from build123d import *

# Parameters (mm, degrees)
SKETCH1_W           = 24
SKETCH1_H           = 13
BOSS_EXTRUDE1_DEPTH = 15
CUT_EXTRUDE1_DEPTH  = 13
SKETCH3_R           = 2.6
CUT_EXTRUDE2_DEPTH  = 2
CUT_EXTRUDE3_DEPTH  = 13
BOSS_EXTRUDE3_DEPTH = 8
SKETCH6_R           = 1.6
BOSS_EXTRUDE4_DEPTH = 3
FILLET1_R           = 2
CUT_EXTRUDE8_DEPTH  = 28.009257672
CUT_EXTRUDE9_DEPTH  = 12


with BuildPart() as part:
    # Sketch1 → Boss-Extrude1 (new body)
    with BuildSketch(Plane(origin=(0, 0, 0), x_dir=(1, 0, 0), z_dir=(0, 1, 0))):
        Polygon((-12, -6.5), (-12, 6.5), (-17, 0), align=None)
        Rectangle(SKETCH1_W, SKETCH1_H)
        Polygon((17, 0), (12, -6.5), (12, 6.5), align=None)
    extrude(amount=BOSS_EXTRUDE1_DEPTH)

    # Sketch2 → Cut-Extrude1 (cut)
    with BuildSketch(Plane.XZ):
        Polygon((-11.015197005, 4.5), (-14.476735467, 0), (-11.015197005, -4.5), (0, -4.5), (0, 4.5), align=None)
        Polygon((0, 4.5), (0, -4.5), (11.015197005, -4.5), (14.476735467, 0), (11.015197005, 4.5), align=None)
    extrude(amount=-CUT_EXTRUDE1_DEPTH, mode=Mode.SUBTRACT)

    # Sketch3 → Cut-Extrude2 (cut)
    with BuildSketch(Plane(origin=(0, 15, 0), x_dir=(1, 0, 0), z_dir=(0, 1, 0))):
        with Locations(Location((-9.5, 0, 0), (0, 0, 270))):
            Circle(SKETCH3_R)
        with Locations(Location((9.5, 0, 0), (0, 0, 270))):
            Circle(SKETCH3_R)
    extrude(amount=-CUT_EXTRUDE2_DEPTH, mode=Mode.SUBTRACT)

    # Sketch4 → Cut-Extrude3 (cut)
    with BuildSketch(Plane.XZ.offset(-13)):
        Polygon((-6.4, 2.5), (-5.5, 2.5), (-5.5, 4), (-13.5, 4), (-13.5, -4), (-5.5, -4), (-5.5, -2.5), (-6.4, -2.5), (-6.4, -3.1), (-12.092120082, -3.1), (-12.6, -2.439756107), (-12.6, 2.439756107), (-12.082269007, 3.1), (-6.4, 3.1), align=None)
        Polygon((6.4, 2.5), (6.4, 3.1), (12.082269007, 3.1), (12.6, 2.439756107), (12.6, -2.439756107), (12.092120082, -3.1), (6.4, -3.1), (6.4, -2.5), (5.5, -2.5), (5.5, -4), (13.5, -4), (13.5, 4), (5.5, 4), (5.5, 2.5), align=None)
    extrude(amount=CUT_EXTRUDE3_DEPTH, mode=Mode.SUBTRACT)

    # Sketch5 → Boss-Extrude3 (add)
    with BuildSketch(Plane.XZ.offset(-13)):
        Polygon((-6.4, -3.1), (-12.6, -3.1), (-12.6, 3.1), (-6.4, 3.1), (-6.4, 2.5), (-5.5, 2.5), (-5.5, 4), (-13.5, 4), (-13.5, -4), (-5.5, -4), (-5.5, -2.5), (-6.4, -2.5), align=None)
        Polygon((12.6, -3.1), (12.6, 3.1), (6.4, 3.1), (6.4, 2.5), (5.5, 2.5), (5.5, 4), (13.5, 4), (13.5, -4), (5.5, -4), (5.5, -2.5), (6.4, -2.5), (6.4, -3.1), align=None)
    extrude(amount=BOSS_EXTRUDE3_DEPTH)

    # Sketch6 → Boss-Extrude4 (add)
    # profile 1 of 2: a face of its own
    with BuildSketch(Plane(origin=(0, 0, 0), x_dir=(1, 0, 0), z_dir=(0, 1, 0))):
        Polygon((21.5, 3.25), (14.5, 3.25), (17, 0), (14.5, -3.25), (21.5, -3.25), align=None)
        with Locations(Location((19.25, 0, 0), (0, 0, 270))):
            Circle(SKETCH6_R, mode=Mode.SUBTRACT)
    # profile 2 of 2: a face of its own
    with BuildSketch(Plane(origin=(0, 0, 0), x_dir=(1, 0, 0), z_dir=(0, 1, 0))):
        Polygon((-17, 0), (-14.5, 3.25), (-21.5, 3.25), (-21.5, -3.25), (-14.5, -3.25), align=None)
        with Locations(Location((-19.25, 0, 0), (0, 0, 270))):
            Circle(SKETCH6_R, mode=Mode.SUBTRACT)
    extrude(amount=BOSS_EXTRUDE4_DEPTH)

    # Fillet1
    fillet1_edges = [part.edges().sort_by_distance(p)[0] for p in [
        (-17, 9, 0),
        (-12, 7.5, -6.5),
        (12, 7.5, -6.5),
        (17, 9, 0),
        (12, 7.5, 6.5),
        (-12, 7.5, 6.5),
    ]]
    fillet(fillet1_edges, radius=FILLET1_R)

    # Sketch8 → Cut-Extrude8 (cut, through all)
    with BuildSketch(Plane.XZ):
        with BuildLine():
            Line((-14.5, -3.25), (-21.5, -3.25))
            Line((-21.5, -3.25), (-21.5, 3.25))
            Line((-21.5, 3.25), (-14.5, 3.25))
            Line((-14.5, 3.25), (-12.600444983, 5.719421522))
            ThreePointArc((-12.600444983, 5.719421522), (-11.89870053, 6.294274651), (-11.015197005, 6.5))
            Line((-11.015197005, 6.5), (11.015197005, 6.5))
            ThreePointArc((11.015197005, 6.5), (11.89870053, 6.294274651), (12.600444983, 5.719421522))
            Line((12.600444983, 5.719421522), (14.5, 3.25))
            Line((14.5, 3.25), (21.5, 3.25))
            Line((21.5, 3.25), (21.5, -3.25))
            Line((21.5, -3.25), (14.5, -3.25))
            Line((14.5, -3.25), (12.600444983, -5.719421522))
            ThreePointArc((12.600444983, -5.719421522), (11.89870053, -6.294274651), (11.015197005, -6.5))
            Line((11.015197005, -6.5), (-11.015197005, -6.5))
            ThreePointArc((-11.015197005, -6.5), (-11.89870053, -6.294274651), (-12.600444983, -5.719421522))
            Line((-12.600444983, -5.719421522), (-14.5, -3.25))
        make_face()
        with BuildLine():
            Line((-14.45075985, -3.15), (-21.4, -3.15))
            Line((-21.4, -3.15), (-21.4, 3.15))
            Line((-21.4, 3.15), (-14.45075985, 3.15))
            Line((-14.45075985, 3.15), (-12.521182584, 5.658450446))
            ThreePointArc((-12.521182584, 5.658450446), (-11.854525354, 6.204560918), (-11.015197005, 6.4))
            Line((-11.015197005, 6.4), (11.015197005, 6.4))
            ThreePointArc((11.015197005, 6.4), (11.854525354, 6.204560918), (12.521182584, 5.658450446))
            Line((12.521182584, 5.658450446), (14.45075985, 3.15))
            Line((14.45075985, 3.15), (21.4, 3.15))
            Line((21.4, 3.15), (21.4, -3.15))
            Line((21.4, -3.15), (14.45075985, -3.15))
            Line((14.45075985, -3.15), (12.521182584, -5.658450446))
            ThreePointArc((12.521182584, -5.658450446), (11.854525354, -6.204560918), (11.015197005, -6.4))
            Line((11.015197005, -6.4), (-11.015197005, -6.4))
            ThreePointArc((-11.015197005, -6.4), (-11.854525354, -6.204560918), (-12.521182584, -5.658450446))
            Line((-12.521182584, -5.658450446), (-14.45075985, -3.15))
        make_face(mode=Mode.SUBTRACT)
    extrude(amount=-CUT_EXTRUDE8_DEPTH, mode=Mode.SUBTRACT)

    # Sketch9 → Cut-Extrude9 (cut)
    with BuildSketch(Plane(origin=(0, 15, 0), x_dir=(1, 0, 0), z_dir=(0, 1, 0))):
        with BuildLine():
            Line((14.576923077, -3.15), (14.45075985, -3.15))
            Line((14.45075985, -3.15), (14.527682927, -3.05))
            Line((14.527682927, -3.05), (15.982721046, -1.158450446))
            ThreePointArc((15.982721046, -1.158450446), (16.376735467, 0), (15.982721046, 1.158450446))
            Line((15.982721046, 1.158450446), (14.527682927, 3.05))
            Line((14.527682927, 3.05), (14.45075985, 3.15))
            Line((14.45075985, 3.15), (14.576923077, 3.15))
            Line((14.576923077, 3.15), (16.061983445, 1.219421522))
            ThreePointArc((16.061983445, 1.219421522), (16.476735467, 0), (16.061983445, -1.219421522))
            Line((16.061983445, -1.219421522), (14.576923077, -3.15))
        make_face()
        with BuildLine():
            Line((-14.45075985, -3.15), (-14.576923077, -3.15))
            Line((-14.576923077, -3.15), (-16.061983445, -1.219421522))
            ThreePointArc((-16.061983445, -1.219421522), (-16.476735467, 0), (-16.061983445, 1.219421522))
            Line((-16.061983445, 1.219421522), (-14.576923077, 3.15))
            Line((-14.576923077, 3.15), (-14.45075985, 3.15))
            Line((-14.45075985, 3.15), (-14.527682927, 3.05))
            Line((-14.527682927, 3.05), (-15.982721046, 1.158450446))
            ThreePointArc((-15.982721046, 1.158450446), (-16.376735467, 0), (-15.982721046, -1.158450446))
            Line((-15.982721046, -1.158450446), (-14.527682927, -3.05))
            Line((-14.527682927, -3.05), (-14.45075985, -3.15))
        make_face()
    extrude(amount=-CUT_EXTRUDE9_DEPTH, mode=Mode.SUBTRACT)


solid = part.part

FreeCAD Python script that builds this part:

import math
import FreeCAD as App
import Part
import Sketcher

V = App.Vector


def edges_at(feature, points):
    """Names of the edges that pass closest to the given points."""
    edges = feature.Shape.Edges
    near = lambda p: min(range(len(edges)), key=lambda i: edges[i].distToShape(Part.Vertex(*p))[0])
    return sorted({f"Edge{near(p) + 1}" for p in points})

doc = App.newDocument("Part")
params = doc.addObject("Spreadsheet::Sheet", "Params")
for row, (alias, value) in enumerate([
    ("sketch1_width", "24 mm"),
    ("pad1_length", "15 mm"),
    ("pocket1_length", "13 mm"),
    ("sketch3_diameter", "5.2 mm"),
    ("pocket2_length", "2 mm"),
    ("sketch4_width", "8 mm"),
    ("sketch4_width2", "0.9 mm"),
    ("sketch4_height", "1.5 mm"),
    ("sketch4_height2", "0.6 mm"),
    ("pocket3_length", "13 mm"),
    ("sketch5_width", "8 mm"),
    ("sketch5_width2", "6.2 mm"),
    ("sketch5_width3", "0.9 mm"),
    ("sketch5_height", "0.6 mm"),
    ("pad2_length", "8 mm"),
    ("sketch6_diameter", "3.2 mm"),
    ("sketch6_width", "7 mm"),
    ("sketch6_height", "6.5 mm"),
    ("pad3_length", "3 mm"),
    ("fillet_radius", "2 mm"),
    ("sketch7_radius", "2 mm"),
    ("sketch7_radius2", "1.9 mm"),
    ("sketch7_width", "7 mm"),
    ("sketch7_height", "6.5 mm"),
    ("sketch7_height2", "6.3 mm"),
    ("sketch8_radius", "2 mm"),
    ("sketch8_radius2", "1.9 mm"),
    ("pocket5_length", "12 mm"),
], start=1):
    params.set(f"A{row}", alias)
    params.set(f"B{row}", "=" + value)
    params.setAlias(f"B{row}", alias)

body = doc.addObject("PartDesign::Body", "Body")

# Sketch on XZ plane
sketch1 = doc.addObject("Sketcher::SketchObject", "Sketch")
body.addObject(sketch1)
sketch1.AttachmentSupport = (doc.XZ_Plane, [""])
sketch1.MapMode = "FlatFace"
sketch1.addGeometry([
    Part.LineSegment(V(-12, -6, 0), V(-17, 0, 0)),  # 0
    Part.LineSegment(V(-17, 0, 0), V(-12, 6, 0)),  # 1
    Part.LineSegment(V(-12, 6, 0), V(12, 6, 0)),  # 2
    Part.LineSegment(V(12, 6, 0), V(17, 0, 0)),  # 3
    Part.LineSegment(V(17, 0, 0), V(12, -6, 0)),  # 4
    Part.LineSegment(V(12, -6, 0), V(-12, -6, 0)),  # 5
], False)
sketch1.addConstraint([
    Sketcher.Constraint("Coincident", 0, 2, 1, 1),
    Sketcher.Constraint("Coincident", 1, 2, 2, 1),
    Sketcher.Constraint("Coincident", 2, 2, 3, 1),
    Sketcher.Constraint("Coincident", 3, 2, 4, 1),
    Sketcher.Constraint("Coincident", 4, 2, 5, 1),
    Sketcher.Constraint("Coincident", 5, 2, 0, 1),
    Sketcher.Constraint("Horizontal", 2),
    Sketcher.Constraint("Horizontal", 5),
    Sketcher.Constraint("Symmetric", 0, 2, 3, 2, -1, 1),
    Sketcher.Constraint("Symmetric", 1, 2, 4, 2, -1, 1),
    Sketcher.Constraint("PointOnObject", 0, 2, -1),
    Sketcher.Constraint("Parallel", 0, 3),
    Sketcher.Constraint("Vertical", 2, 2, 4, 2),
    Sketcher.Constraint("DistanceX", 2, 1, 2, 2, 24.0),
    Sketcher.Constraint("DistanceX", 0, 2, -1, 1, 17.0),
    Sketcher.Constraint("DistanceY", 4, 2, 2, 2, 13.0),
])
sketch1.setExpression("Constraints[13]", "Params.sketch1_width")
pad1 = doc.addObject("PartDesign::Pad", "Pad")
body.addObject(pad1)
pad1.Profile = sketch1
pad1.setExpression("Length", "Params.pad1_length")
pad1.Reversed = True

# Sketch on XZ plane
sketch2 = doc.addObject("Sketcher::SketchObject", "Sketch001")
body.addObject(sketch2)
sketch2.AttachmentSupport = (doc.XZ_Plane, [""])
sketch2.MapMode = "FlatFace"
sketch2.addGeometry([
    Part.LineSegment(V(-11, 4, 0), V(-14, 0, 0)),  # 0
    Part.LineSegment(V(-14, 0, 0), V(-11, -4, 0)),  # 1
    Part.LineSegment(V(-11, -4, 0), V(11, -4, 0)),  # 2
    Part.LineSegment(V(11, -4, 0), V(14, 0, 0)),  # 3
    Part.LineSegment(V(14, 0, 0), V(11, 4, 0)),  # 4
    Part.LineSegment(V(11, 4, 0), V(-11, 4, 0)),  # 5
], False)
sketch2.addConstraint([
    Sketcher.Constraint("Coincident", 0, 2, 1, 1),
    Sketcher.Constraint("Coincident", 1, 2, 2, 1),
    Sketcher.Constraint("Coincident", 2, 2, 3, 1),
    Sketcher.Constraint("Coincident", 3, 2, 4, 1),
    Sketcher.Constraint("Coincident", 4, 2, 5, 1),
    Sketcher.Constraint("Coincident", 5, 2, 0, 1),
    Sketcher.Constraint("Horizontal", 2),
    Sketcher.Constraint("Horizontal", 5),
    Sketcher.Constraint("Symmetric", 0, 2, 3, 2, -1, 1),
    Sketcher.Constraint("Symmetric", 1, 2, 4, 2, -1, 1),
    Sketcher.Constraint("PointOnObject", 0, 2, -1),
    Sketcher.Constraint("Parallel", 0, 3),
    Sketcher.Constraint("Vertical", 2, 2, 4, 2),
    Sketcher.Constraint("DistanceY", 2, 2, 4, 2, 9.0),
    Sketcher.Constraint("DistanceX", 2, 1, 2, 2, 22.030394),
    Sketcher.Constraint("DistanceX", 0, 2, 1, 2, 3.461538),
])
pocket1 = doc.addObject("PartDesign::Pocket", "Pocket")
body.addObject(pocket1)
pocket1.Profile = sketch2
pocket1.setExpression("Length", "Params.pocket1_length")

# Sketch on XZ plane
sketch3 = doc.addObject("Sketcher::SketchObject", "Sketch002")
body.addObject(sketch3)
sketch3.AttachmentSupport = (doc.XZ_Plane, [""])
sketch3.MapMode = "FlatFace"
sketch3.AttachmentOffset = App.Placement(V(0, 0, -15), App.Rotation())
sketch3.addGeometry([
    Part.Circle(V(-9.5, 0, 0), V(0, 0, 1), 2.6),
    Part.Circle(V(9.5, 0, 0), V(0, 0, 1), 2.6),
], False)
sketch3.addConstraint([
    Sketcher.Constraint("Equal", 0, 1),
    Sketcher.Constraint("Symmetric", 0, 3, 1, 3, -1, 1),
    Sketcher.Constraint("PointOnObject", 0, 3, -1),
    Sketcher.Constraint("Diameter", 0, 5.2),
    Sketcher.Constraint("DistanceX", 0, 3, 1, 3, 19.0),
])
sketch3.setExpression("Constraints[3]", "Params.sketch3_diameter")
pocket2 = doc.addObject("PartDesign::Pocket", "Pocket001")
body.addObject(pocket2)
pocket2.Profile = sketch3
pocket2.setExpression("Length", "Params.pocket2_length")
pocket2.Reversed = True

# Sketch on XZ plane
sketch4 = doc.addObject("Sketcher::SketchObject", "Sketch003")
body.addObject(sketch4)
sketch4.AttachmentSupport = (doc.XZ_Plane, [""])
sketch4.MapMode = "FlatFace"
sketch4.AttachmentOffset = App.Placement(V(0, 0, -13), App.Rotation())
sketch4.addGeometry([
    Part.LineSegment(V(-6.4, 2.5, 0), V(-5.5, 2.5, 0)),  # 0
    Part.LineSegment(V(-5.5, 2.5, 0), V(-5.5, 4, 0)),  # 1
    Part.LineSegment(V(-5.5, 4, 0), V(-13.5, 4, 0)),  # 2
    Part.LineSegment(V(-13.5, 4, 0), V(-13.5, -4, 0)),  # 3
    Part.LineSegment(V(-13.5, -4, 0), V(-5.5, -4, 0)),  # 4
    Part.LineSegment(V(-5.5, -4, 0), V(-5.5, -2.5, 0)),  # 5
    Part.LineSegment(V(-5.5, -2.5, 0), V(-6.4, -2.5, 0)),  # 6
    Part.LineSegment(V(-6.4, -2.5, 0), V(-6.4, -3.1, 0)),  # 7
    Part.LineSegment(V(-6.4, -3.1, 0), V(-12.1, -3.1, 0)),  # 8
    Part.LineSegment(V(-12.1, -3.1, 0), V(-12.6, -2.4, 0)),  # 9
    Part.LineSegment(V(-12.6, -2.4, 0), V(-12.6, 2.4, 0)),  # 10
    Part.LineSegment(V(-12.6, 2.4, 0), V(-12.1, 3.1, 0)),  # 11
    Part.LineSegment(V(-12.1, 3.1, 0), V(-6.4, 3.1, 0)),  # 12
    Part.LineSegment(V(-6.4, 3.1, 0), V(-6.4, 2.5, 0)),  # 13
    Part.LineSegment(V(6.4, 2.5, 0), V(6.4, 3.1, 0)),  # 14
    Part.LineSegment(V(6.4, 3.1, 0), V(12.1, 3.1, 0)),  # 15
    Part.LineSegment(V(12.1, 3.1, 0), V(12.6, 2.4, 0)),  # 16
    Part.LineSegment(V(12.6, 2.4, 0), V(12.6, -2.4, 0)),  # 17
    Part.LineSegment(V(12.6, -2.4, 0), V(12.1, -3.1, 0)),  # 18
    Part.LineSegment(V(12.1, -3.1, 0), V(6.4, -3.1, 0)),  # 19
    Part.LineSegment(V(6.4, -3.1, 0), V(6.4, -2.5, 0)),  # 20
    Part.LineSegment(V(6.4, -2.5, 0), V(5.5, -2.5, 0)),  # 21
    Part.LineSegment(V(5.5, -2.5, 0), V(5.5, -4, 0)),  # 22
    Part.LineSegment(V(5.5, -4, 0), V(13.5, -4, 0)),  # 23
    Part.LineSegment(V(13.5, -4, 0), V(13.5, 4, 0)),  # 24
    Part.LineSegment(V(13.5, 4, 0), V(5.5, 4, 0)),  # 25
    Part.LineSegment(V(5.5, 4, 0), V(5.5, 2.5, 0)),  # 26
    Part.LineSegment(V(5.5, 2.5, 0), V(6.4, 2.5, 0)),  # 27
], False)
sketch4.addConstraint([
    Sketcher.Constraint("Coincident", 0, 2, 1, 1),
    Sketcher.Constraint("Coincident", 1, 2, 2, 1),
    Sketcher.Constraint("Coincident", 2, 2, 3, 1),
    Sketcher.Constraint("Coincident", 3, 2, 4, 1),
    Sketcher.Constraint("Coincident", 4, 2, 5, 1),
    Sketcher.Constraint("Coincident", 5, 2, 6, 1),
    Sketcher.Constraint("Coincident", 6, 2, 7, 1),
    Sketcher.Constraint("Coincident", 7, 2, 8, 1),
    Sketcher.Constraint("Coincident", 8, 2, 9, 1),
    Sketcher.Constraint("Coincident", 9, 2, 10, 1),
    Sketcher.Constraint("Coincident", 10, 2, 11, 1),
    Sketcher.Constraint("Coincident", 11, 2, 12, 1),
    Sketcher.Constraint("Coincident", 12, 2, 13, 1),
    Sketcher.Constraint("Coincident", 13, 2, 0, 1),
    Sketcher.Constraint("Coincident", 14, 2, 15, 1),
    Sketcher.Constraint("Coincident", 15, 2, 16, 1),
    Sketcher.Constraint("Coincident", 16, 2, 17, 1),
    Sketcher.Constraint("Coincident", 17, 2, 18, 1),
    Sketcher.Constraint("Coincident", 18, 2, 19, 1),
    Sketcher.Constraint("Coincident", 19, 2, 20, 1),
    Sketcher.Constraint("Coincident", 20, 2, 21, 1),
    Sketcher.Constraint("Coincident", 21, 2, 22, 1),
    Sketcher.Constraint("Coincident", 22, 2, 23, 1),
    Sketcher.Constraint("Coincident", 23, 2, 24, 1),
    Sketcher.Constraint("Coincident", 24, 2, 25, 1),
    Sketcher.Constraint("Coincident", 25, 2, 26, 1),
    Sketcher.Constraint("Coincident", 26, 2, 27, 1),
    Sketcher.Constraint("Coincident", 27, 2, 14, 1),
    Sketcher.Constraint("Horizontal", 0),
    Sketcher.Constraint("Vertical", 1),
    Sketcher.Constraint("Horizontal", 2),
    Sketcher.Constraint("Vertical", 3),
    Sketcher.Constraint("Horizontal", 4),
    Sketcher.Constraint("Vertical", 5),
    Sketcher.Constraint("Horizontal", 6),
    Sketcher.Constraint("Vertical", 7),
    Sketcher.Constraint("Horizontal", 8),
    Sketcher.Constraint("Vertical", 10),
    Sketcher.Constraint("Horizontal", 12),
    Sketcher.Constraint("Vertical", 13),
    Sketcher.Constraint("Vertical", 14),
    Sketcher.Constraint("Horizontal", 15),
    Sketcher.Constraint("Vertical", 17),
    Sketcher.Constraint("Horizontal", 19),
    Sketcher.Constraint("Vertical", 20),
    Sketcher.Constraint("Horizontal", 21),
    Sketcher.Constraint("Vertical", 22),
    Sketcher.Constraint("Horizontal", 23),
    Sketcher.Constraint("Vertical", 24),
    Sketcher.Constraint("Horizontal", 25),
    Sketcher.Constraint("Vertical", 26),
    Sketcher.Constraint("Horizontal", 27),
    Sketcher.Constraint("Symmetric", 7, 2, 14, 2, -1, 1),
    Sketcher.Constraint("Symmetric", 9, 2, 16, 2, -1, 1),
    Sketcher.Constraint("Symmetric", 12, 2, 19, 2, -1, 1),
    Sketcher.Constraint("Symmetric", 0, 2, 21, 2, -1, 1),
    Sketcher.Constraint("Symmetric", 2, 2, 23, 2, -1, 1),
    Sketcher.Constraint("Symmetric", 4, 2, 25, 2, -1, 1),
    Sketcher.Constraint("Symmetric", 12, 2, 14, 2, -2),
    Sketcher.Constraint("Symmetric", 5, 2, 21, 2, -2),
    Sketcher.Constraint("Horizontal", 10, 2, 16, 2),
    Sketcher.Constraint("Horizontal", 9, 2, 17, 2),
    Sketcher.Constraint("Horizontal", 4, 2, 22, 2),
    Sketcher.Constraint("Horizontal", 13, 2, 26, 2),
    Sketcher.Constraint("Equal", 12, 15),
    Sketcher.Constraint("Equal", 8, 19),
    Sketcher.Constraint("Equal", 25, 3),
    Sketcher.Constraint("DistanceX", 2, 2, 2, 1, 8.0),
    Sketcher.Constraint("DistanceX", 0, 1, 0, 2, 0.9),
    Sketcher.Constraint("DistanceY", 1, 1, 1, 2, 1.5),
    Sketcher.Constraint("DistanceY", 7, 2, 7, 1, 0.6),
    Sketcher.Constraint("DistanceX", 0, 2, -1, 1, 5.5),
    Sketcher.Constraint("DistanceX", 9, 2, -1, 1, 12.6),
    Sketcher.Constraint("DistanceX", 8, 2, 8, 1, 5.69212),
    Sketcher.Constraint("DistanceX", 12, 1, 12, 2, 5.682269),
    Sketcher.Constraint("DistanceY", 10, 1, 10, 2, 4.879512),
])
sketch4.setExpression("Constraints[67]", "Params.sketch4_width")
sketch4.setExpression("Constraints[68]", "Params.sketch4_width2")
sketch4.setExpression("Constraints[69]", "Params.sketch4_height")
sketch4.setExpression("Constraints[70]", "Params.sketch4_height2")
pocket3 = doc.addObject("PartDesign::Pocket", "Pocket002")
body.addObject(pocket3)
pocket3.Profile = sketch4
pocket3.setExpression("Length", "Params.pocket3_length")
pocket3.Reversed = True

# Sketch on XZ plane
sketch5 = doc.addObject("Sketcher::SketchObject", "Sketch004")
body.addObject(sketch5)
sketch5.AttachmentSupport = (doc.XZ_Plane, [""])
sketch5.MapMode = "FlatFace"
sketch5.AttachmentOffset = App.Placement(V(0, 0, -13), App.Rotation())
sketch5.addGeometry([
    Part.LineSegment(V(-6.4, -3.1, 0), V(-12.6, -3.1, 0)),  # 0
    Part.LineSegment(V(-12.6, -3.1, 0), V(-12.6, 3.1, 0)),  # 1
    Part.LineSegment(V(-12.6, 3.1, 0), V(-6.4, 3.1, 0)),  # 2
    Part.LineSegment(V(-6.4, 3.1, 0), V(-6.4, 2.5, 0)),  # 3
    Part.LineSegment(V(-6.4, 2.5, 0), V(-5.5, 2.5, 0)),  # 4
    Part.LineSegment(V(-5.5, 2.5, 0), V(-5.5, 4, 0)),  # 5
    Part.LineSegment(V(-5.5, 4, 0), V(-13.5, 4, 0)),  # 6
    Part.LineSegment(V(-13.5, 4, 0), V(-13.5, -4, 0)),  # 7
    Part.LineSegment(V(-13.5, -4, 0), V(-5.5, -4, 0)),  # 8
    Part.LineSegment(V(-5.5, -4, 0), V(-5.5, -2.5, 0)),  # 9
    Part.LineSegment(V(-5.5, -2.5, 0), V(-6.4, -2.5, 0)),  # 10
    Part.LineSegment(V(-6.4, -2.5, 0), V(-6.4, -3.1, 0)),  # 11
    Part.LineSegment(V(12.6, 3.1, 0), V(12.6, -3.1, 0)),  # 12
    Part.LineSegment(V(12.6, -3.1, 0), V(6.4, -3.1, 0)),  # 13
    Part.LineSegment(V(6.4, -3.1, 0), V(6.4, -2.5, 0)),  # 14
    Part.LineSegment(V(6.4, -2.5, 0), V(5.5, -2.5, 0)),  # 15
    Part.LineSegment(V(5.5, -2.5, 0), V(5.5, -4, 0)),  # 16
    Part.LineSegment(V(5.5, -4, 0), V(13.5, -4, 0)),  # 17
    Part.LineSegment(V(13.5, -4, 0), V(13.5, 4, 0)),  # 18
    Part.LineSegment(V(13.5, 4, 0), V(5.5, 4, 0)),  # 19
    Part.LineSegment(V(5.5, 4, 0), V(5.5, 2.5, 0)),  # 20
    Part.LineSegment(V(5.5, 2.5, 0), V(6.4, 2.5, 0)),  # 21
    Part.LineSegment(V(6.4, 2.5, 0), V(6.4, 3.1, 0)),  # 22
    Part.LineSegment(V(6.4, 3.1, 0), V(12.6, 3.1, 0)),  # 23
], False)
sketch5.addConstraint([
    Sketcher.Constraint("Coincident", 0, 2, 1, 1),
    Sketcher.Constraint("Coincident", 1, 2, 2, 1),
    Sketcher.Constraint("Coincident", 2, 2, 3, 1),
    Sketcher.Constraint("Coincident", 3, 2, 4, 1),
    Sketcher.Constraint("Coincident", 4, 2, 5, 1),
    Sketcher.Constraint("Coincident", 5, 2, 6, 1),
    Sketcher.Constraint("Coincident", 6, 2, 7, 1),
    Sketcher.Constraint("Coincident", 7, 2, 8, 1),
    Sketcher.Constraint("Coincident", 8, 2, 9, 1),
    Sketcher.Constraint("Coincident", 9, 2, 10, 1),
    Sketcher.Constraint("Coincident", 10, 2, 11, 1),
    Sketcher.Constraint("Coincident", 11, 2, 0, 1),
    Sketcher.Constraint("Coincident", 12, 2, 13, 1),
    Sketcher.Constraint("Coincident", 13, 2, 14, 1),
    Sketcher.Constraint("Coincident", 14, 2, 15, 1),
    Sketcher.Constraint("Coincident", 15, 2, 16, 1),
    Sketcher.Constraint("Coincident", 16, 2, 17, 1),
    Sketcher.Constraint("Coincident", 17, 2, 18, 1),
    Sketcher.Constraint("Coincident", 18, 2, 19, 1),
    Sketcher.Constraint("Coincident", 19, 2, 20, 1),
    Sketcher.Constraint("Coincident", 20, 2, 21, 1),
    Sketcher.Constraint("Coincident", 21, 2, 22, 1),
    Sketcher.Constraint("Coincident", 22, 2, 23, 1),
    Sketcher.Constraint("Coincident", 23, 2, 12, 1),
    Sketcher.Constraint("Horizontal", 0),
    Sketcher.Constraint("Vertical", 1),
    Sketcher.Constraint("Horizontal", 2),
    Sketcher.Constraint("Vertical", 3),
    Sketcher.Constraint("Horizontal", 4),
    Sketcher.Constraint("Vertical", 5),
    Sketcher.Constraint("Horizontal", 6),
    Sketcher.Constraint("Vertical", 7),
    Sketcher.Constraint("Horizontal", 8),
    Sketcher.Constraint("Vertical", 9),
    Sketcher.Constraint("Horizontal", 10),
    Sketcher.Constraint("Vertical", 11),
    Sketcher.Constraint("Vertical", 12),
    Sketcher.Constraint("Horizontal", 13),
    Sketcher.Constraint("Vertical", 14),
    Sketcher.Constraint("Horizontal", 15),
    Sketcher.Constraint("Vertical", 16),
    Sketcher.Constraint("Horizontal", 17),
    Sketcher.Constraint("Vertical", 18),
    Sketcher.Constraint("Horizontal", 19),
    Sketcher.Constraint("Vertical", 20),
    Sketcher.Constraint("Horizontal", 21),
    Sketcher.Constraint("Vertical", 22),
    Sketcher.Constraint("Horizontal", 23),
    Sketcher.Constraint("Symmetric", 1, 2, 12, 2, -1, 1),
    Sketcher.Constraint("Symmetric", 3, 2, 14, 2, -1, 1),
    Sketcher.Constraint("Symmetric", 5, 2, 16, 2, -1, 1),
    Sketcher.Constraint("Symmetric", 7, 2, 18, 2, -1, 1),
    Sketcher.Constraint("Symmetric", 9, 2, 20, 2, -1, 1),
    Sketcher.Constraint("Symmetric", 11, 2, 22, 2, -1, 1),
    Sketcher.Constraint("Symmetric", 11, 2, 13, 2, -2),
    Sketcher.Constraint("Symmetric", 9, 2, 15, 2, -2),
    Sketcher.Constraint("Horizontal", 8, 2, 16, 2),
    Sketcher.Constraint("Equal", 23, 1),
    Sketcher.Constraint("Equal", 19, 7),
    Sketcher.Constraint("DistanceX", 6, 2, 6, 1, 8.0),
    Sketcher.Constraint("DistanceX", 0, 2, 0, 1, 6.2),
    Sketcher.Constraint("DistanceX", 4, 1, 4, 2, 0.9),
    Sketcher.Constraint("DistanceY", 3, 2, 3, 1, 0.6),
    Sketcher.Constraint("DistanceX", 11, 2, 12, 2, 19.0),
])
sketch5.setExpression("Constraints[59]", "Params.sketch5_width")
sketch5.setExpression("Constraints[60]", "Params.sketch5_width2")
sketch5.setExpression("Constraints[61]", "Params.sketch5_width3")
sketch5.setExpression("Constraints[62]", "Params.sketch5_height")
pad2 = doc.addObject("PartDesign::Pad", "Pad001")
body.addObject(pad2)
pad2.Profile = sketch5
pad2.setExpression("Length", "Params.pad2_length")

# Sketch on XZ plane
sketch6 = doc.addObject("Sketcher::SketchObject", "Sketch005")
body.addObject(sketch6)
sketch6.AttachmentSupport = (doc.XZ_Plane, [""])
sketch6.MapMode = "FlatFace"
sketch6.addGeometry([
    Part.LineSegment(V(21.5, -3.2, 0), V(14.5, -3.2, 0)),  # 0
    Part.LineSegment(V(14.5, -3.2, 0), V(17, 0, 0)),  # 1
    Part.LineSegment(V(17, 0, 0), V(14.5, 3.2, 0)),  # 2
    Part.LineSegment(V(14.5, 3.2, 0), V(21.5, 3.2, 0)),  # 3
    Part.LineSegment(V(21.5, 3.2, 0), V(21.5, -3.2, 0)),  # 4
    Part.Circle(V(19.2, 0, 0), V(0, 0, 1), 1.6),  # 5
    Part.LineSegment(V(-17, 0, 0), V(-14.5, -3.2, 0)),  # 6
    Part.LineSegment(V(-14.5, -3.2, 0), V(-21.5, -3.2, 0)),  # 7
    Part.LineSegment(V(-21.5, -3.2, 0), V(-21.5, 3.2, 0)),  # 8
    Part.LineSegment(V(-21.5, 3.2, 0), V(-14.5, 3.2, 0)),  # 9
    Part.LineSegment(V(-14.5, 3.2, 0), V(-17, 0, 0)),  # 10
    Part.Circle(V(-19.2, 0, 0), V(0, 0, 1), 1.6),  # 11
], False)
sketch6.addConstraint([
    Sketcher.Constraint("Coincident", 0, 2, 1, 1),
    Sketcher.Constraint("Coincident", 1, 2, 2, 1),
    Sketcher.Constraint("Coincident", 2, 2, 3, 1),
    Sketcher.Constraint("Coincident", 3, 2, 4, 1),
    Sketcher.Constraint("Coincident", 4, 2, 0, 1),
    Sketcher.Constraint("Coincident", 6, 2, 7, 1),
    Sketcher.Constraint("Coincident", 7, 2, 8, 1),
    Sketcher.Constraint("Coincident", 8, 2, 9, 1),
    Sketcher.Constraint("Coincident", 9, 2, 10, 1),
    Sketcher.Constraint("Coincident", 10, 2, 6, 1),
    Sketcher.Constraint("Horizontal", 0),
    Sketcher.Constraint("Horizontal", 3),
    Sketcher.Constraint("Vertical", 4),
    Sketcher.Constraint("Horizontal", 7),
    Sketcher.Constraint("Vertical", 8),
    Sketcher.Constraint("Horizontal", 9),
    Sketcher.Constraint("Equal", 5, 11),
    Sketcher.Constraint("Symmetric", 5, 3, 11, 3, -1, 1),
    Sketcher.Constraint("Symmetric", 2, 2, 6, 2, -1, 1),
    Sketcher.Constraint("Symmetric", 4, 2, 8, 2, -1, 1),
    Sketcher.Constraint("Symmetric", 1, 2, 10, 2, -1, 1),
    Sketcher.Constraint("Symmetric", 0, 2, 6, 2, -2),
    Sketcher.Constraint("PointOnObject", 5, 3, -1),
    Sketcher.Constraint("PointOnObject", 1, 2, -1),
    Sketcher.Constraint("Parallel", 1, 10),
    Sketcher.Constraint("Diameter", 5, 3.2),
    Sketcher.Constraint("DistanceX", 0, 2, 0, 1, 7.0),
    Sketcher.Constraint("DistanceY", 4, 2, 4, 1, 6.5),
    Sketcher.Constraint("DistanceX", -1, 1, 1, 2, 17.0),
    Sketcher.Constraint("DistanceX", 6, 2, 0, 2, 29.0),
    Sketcher.Constraint("DistanceX", 11, 3, 5, 3, 38.5),
])
sketch6.setExpression("Constraints[25]", "Params.sketch6_diameter")
sketch6.setExpression("Constraints[26]", "Params.sketch6_width")
sketch6.setExpression("Constraints[27]", "Params.sketch6_height")
pad3 = doc.addObject("PartDesign::Pad", "Pad002")
body.addObject(pad3)
pad3.Profile = sketch6
pad3.setExpression("Length", "Params.pad3_length")
pad3.Reversed = True
doc.recompute()

fillet = doc.addObject("PartDesign::Fillet", "Fillet")
body.addObject(fillet)
fillet.Base = (pad3, edges_at(pad3, [
    (-17, 9, 0),
    (-12, 7.5, -6.5),
    (12, 7.5, -6.5),
    (17, 9, 0),
    (12, 7.5, 6.5),
    (-12, 7.5, 6.5),
]))
fillet.setExpression("Radius", "Params.fillet_radius")

# Sketch on XZ plane
sketch7 = doc.addObject("Sketcher::SketchObject", "Sketch006")
body.addObject(sketch7)
sketch7.AttachmentSupport = (doc.XZ_Plane, [""])
sketch7.MapMode = "FlatFace"
sketch7.addGeometry([
    Part.LineSegment(V(-21.5, -3.2, 0), V(-14.5, -3.2, 0)),  # 0
    Part.LineSegment(V(-14.5, -3.2, 0), V(-12.6, -5.7, 0)),  # 1
    Part.ArcOfCircle(Part.Circle(V(-11, -4.5, 0), V(0, 0, 1), 2), math.radians(-142), math.radians(-90)),  # 2
    Part.LineSegment(V(-11, -6.5, 0), V(11, -6.5, 0)),  # 3
    Part.ArcOfCircle(Part.Circle(V(11, -4.5, 0), V(0, 0, 1), 2), math.radians(-90), math.radians(-38)),  # 4
    Part.LineSegment(V(12.6, -5.7, 0), V(14.5, -3.2, 0)),  # 5
    Part.LineSegment(V(14.5, -3.2, 0), V(21.5, -3.2, 0)),  # 6
    Part.LineSegment(V(21.5, -3.2, 0), V(21.5, 3.2, 0)),  # 7
    Part.LineSegment(V(21.5, 3.2, 0), V(14.5, 3.2, 0)),  # 8
    Part.LineSegment(V(14.5, 3.2, 0), V(12.6, 5.7, 0)),  # 9
    Part.ArcOfCircle(Part.Circle(V(11, 4.5, 0), V(0, 0, 1), 2), math.radians(38), math.radians(90)),  # 10
    Part.LineSegment(V(11, 6.5, 0), V(-11, 6.5, 0)),  # 11
    Part.ArcOfCircle(Part.Circle(V(-11, 4.5, 0), V(0, 0, 1), 2), math.radians(90), math.radians(142)),  # 12
    Part.LineSegment(V(-12.6, 5.7, 0), V(-14.5, 3.2, 0)),  # 13
    Part.LineSegment(V(-14.5, 3.2, 0), V(-21.5, 3.2, 0)),  # 14
    Part.LineSegment(V(-21.5, 3.2, 0), V(-21.5, -3.2, 0)),  # 15
    Part.LineSegment(V(-14.5, -3.1, 0), V(-21.4, -3.1, 0)),  # 16
    Part.LineSegment(V(-21.4, -3.1, 0), V(-21.4, 3.1, 0)),  # 17
    Part.LineSegment(V(-21.4, 3.1, 0), V(-14.5, 3.1, 0)),  # 18
    Part.LineSegment(V(-14.5, 3.1, 0), V(-12.5, 5.7, 0)),  # 19
    Part.ArcOfCircle(Part.Circle(V(-11, 4.5, 0), V(0, 0, 1), 1.9), math.radians(90), math.radians(142)),  # 20
    Part.LineSegment(V(-11, 6.4, 0), V(11, 6.4, 0)),  # 21
    Part.ArcOfCircle(Part.Circle(V(11, 4.5, 0), V(0, 0, 1), 1.9), math.radians(38), math.radians(90)),  # 22
    Part.LineSegment(V(12.5, 5.7, 0), V(14.5, 3.1, 0)),  # 23
    Part.LineSegment(V(14.5, 3.1, 0), V(21.4, 3.1, 0)),  # 24
    Part.LineSegment(V(21.4, 3.1, 0), V(21.4, -3.1, 0)),  # 25
    Part.LineSegment(V(21.4, -3.1, 0), V(14.5, -3.1, 0)),  # 26
    Part.LineSegment(V(14.5, -3.1, 0), V(12.5, -5.7, 0)),  # 27
    Part.ArcOfCircle(Part.Circle(V(11, -4.5, 0), V(0, 0, 1), 1.9), math.radians(-90), math.radians(-38)),  # 28
    Part.LineSegment(V(11, -6.4, 0), V(-11, -6.4, 0)),  # 29
    Part.ArcOfCircle(Part.Circle(V(-11, -4.5, 0), V(0, 0, 1), 1.9), math.radians(-142), math.radians(-90)),  # 30
    Part.LineSegment(V(-12.5, -5.7, 0), V(-14.5, -3.1, 0)),  # 31
], False)
sketch7.addConstraint([
    Sketcher.Constraint("Coincident", 0, 2, 1, 1),
    Sketcher.Constraint("Tangent", 1, 2, 2, 1),
    Sketcher.Constraint("Tangent", 2, 2, 3, 1),
    Sketcher.Constraint("Tangent", 3, 2, 4, 1),
    Sketcher.Constraint("Tangent", 4, 2, 5, 1),
    Sketcher.Constraint("Coincident", 5, 2, 6, 1),
    Sketcher.Constraint("Coincident", 6, 2, 7, 1),
    Sketcher.Constraint("Coincident", 7, 2, 8, 1),
    Sketcher.Constraint("Coincident", 8, 2, 9, 1),
    Sketcher.Constraint("Tangent", 9, 2, 10, 1),
    Sketcher.Constraint("Tangent", 10, 2, 11, 1),
    Sketcher.Constraint("Tangent", 11, 2, 12, 1),
    Sketcher.Constraint("Tangent", 12, 2, 13, 1),
    Sketcher.Constraint("Coincident", 13, 2, 14, 1),
    Sketcher.Constraint("Coincident", 14, 2, 15, 1),
    Sketcher.Constraint("Coincident", 15, 2, 0, 1),
    Sketcher.Constraint("Coincident", 16, 2, 17, 1),
    Sketcher.Constraint("Coincident", 17, 2, 18, 1),
    Sketcher.Constraint("Coincident", 18, 2, 19, 1),
    Sketcher.Constraint("Tangent", 19, 2, 20, 2),
    Sketcher.Constraint("Tangent", 20, 1, 21, 1),
    Sketcher.Constraint("Tangent", 21, 2, 22, 2),
    Sketcher.Constraint("Tangent", 22, 1, 23, 1),
    Sketcher.Constraint("Coincident", 23, 2, 24, 1),
    Sketcher.Constraint("Coincident", 24, 2, 25, 1),
    Sketcher.Constraint("Coincident", 25, 2, 26, 1),
    Sketcher.Constraint("Coincident", 26, 2, 27, 1),
    Sketcher.Constraint("Tangent", 27, 2, 28, 2),
    Sketcher.Constraint("Tangent", 28, 1, 29, 1),
    Sketcher.Constraint("Tangent", 29, 2, 30, 2),
    Sketcher.Constraint("Tangent", 30, 1, 31, 1),
    Sketcher.Constraint("Coincident", 31, 2, 16, 1),
    Sketcher.Constraint("Horizontal", 0),
    Sketcher.Constraint("Horizontal", 3),
    Sketcher.Constraint("Horizontal", 6),
    Sketcher.Constraint("Vertical", 7),
    Sketcher.Constraint("Horizontal", 8),
    Sketcher.Constraint("Horizontal", 11),
    Sketcher.Constraint("Horizontal", 14),
    Sketcher.Constraint("Vertical", 15),
    Sketcher.Constraint("Horizontal", 16),
    Sketcher.Constraint("Vertical", 17),
    Sketcher.Constraint("Horizontal", 18),
    Sketcher.Constraint("Horizontal", 21),
    Sketcher.Constraint("Horizontal", 24),
    Sketcher.Constraint("Vertical", 25),
    Sketcher.Constraint("Horizontal", 26),
    Sketcher.Constraint("Horizontal", 29),
    Sketcher.Constraint("Coincident", 20, 3, 12, 3),
    Sketcher.Constraint("Coincident", 22, 3, 10, 3),
    Sketcher.Constraint("Coincident", 28, 3, 4, 3),
    Sketcher.Constraint("Coincident", 30, 3, 2, 3),
    Sketcher.Constraint("Equal", 2, 4),
    Sketcher.Constraint("Equal", 4, 10),
    Sketcher.Constraint("Equal", 10, 12),
    Sketcher.Constraint("Equal", 22, 28),
    Sketcher.Constraint("Symmetric", 2, 3, 10, 3, -1, 1),
    Sketcher.Constraint("Symmetric", 0, 2, 8, 2, -1, 1),
    Sketcher.Constraint("Symmetric", 4, 2, 12, 2, -1, 1),
    Sketcher.Constraint("Symmetric", 6, 2, 14, 2, -1, 1),
    Sketcher.Constraint("Symmetric", 16, 2, 24, 2, -1, 1),
    Sketcher.Constraint("Symmetric", 18, 2, 26, 2, -1, 1),
    Sketcher.Constraint("Symmetric", 1, 2, 4, 2, -2),
    Sketcher.Constraint("Symmetric", 18, 2, 23, 2, -2),
    Sketcher.Constraint("Parallel", 13, 19),
    Sketcher.Constraint("Parallel", 23, 31),
    Sketcher.Constraint("Horizontal", 0, 2, 5, 2),
    Sketcher.Constraint("Radius", 2, 2.0),
    Sketcher.Constraint("Radius", 20, 1.9),
    Sketcher.Constraint("DistanceX", 0, 1, 0, 2, 7.0),
    Sketcher.Constraint("DistanceY", 7, 1, 7, 2, 6.5),
    Sketcher.Constraint("DistanceY", 17, 1, 17, 2, 6.3),
    Sketcher.Constraint("DistanceY", 4, 3, 10, 3, 9.0),
    Sketcher.Constraint("DistanceX", 0, 2, -1, 1, 14.5),
    Sketcher.Constraint("DistanceX", 16, 2, -1, 1, 21.4),
    Sketcher.Constraint("Distance", 1, 3.115502),
])
sketch7.setExpression("Constraints[67]", "Params.sketch7_radius")
sketch7.setExpression("Constraints[68]", "Params.sketch7_radius2")
sketch7.setExpression("Constraints[69]", "Params.sketch7_width")
sketch7.setExpression("Constraints[70]", "Params.sketch7_height")
sketch7.setExpression("Constraints[71]", "Params.sketch7_height2")
pocket4 = doc.addObject("PartDesign::Pocket", "Pocket003")
body.addObject(pocket4)
pocket4.Profile = sketch7
pocket4.Type = "ThroughAll"

# Sketch on XZ plane
sketch8 = doc.addObject("Sketcher::SketchObject", "Sketch007")
body.addObject(sketch8)
sketch8.AttachmentSupport = (doc.XZ_Plane, [""])
sketch8.MapMode = "FlatFace"
sketch8.AttachmentOffset = App.Placement(V(0, 0, -15), App.Rotation())
sketch8.addGeometry([
    Part.LineSegment(V(14.45, 3.15, 0), V(14.58, 3.15, 0)),  # 0
    Part.LineSegment(V(14.58, 3.15, 0), V(16.06, 1.22, 0)),  # 1
    Part.ArcOfCircle(Part.Circle(V(14.48, 0, 0), V(0, 0, 1), 2), math.radians(-38), math.radians(38)),  # 2
    Part.LineSegment(V(16.06, -1.22, 0), V(14.58, -3.15, 0)),  # 3
    Part.LineSegment(V(14.58, -3.15, 0), V(14.45, -3.15, 0)),  # 4
    Part.LineSegment(V(14.45, -3.15, 0), V(14.53, -3.05, 0)),  # 5
    Part.LineSegment(V(14.53, -3.05, 0), V(15.98, -1.16, 0)),  # 6
    Part.ArcOfCircle(Part.Circle(V(14.48, 0, 0), V(0, 0, 1), 1.9), math.radians(-38), math.radians(38)),  # 7
    Part.LineSegment(V(15.98, 1.16, 0), V(14.53, 3.05, 0)),  # 8
    Part.LineSegment(V(14.53, 3.05, 0), V(14.45, 3.15, 0)),  # 9
    Part.LineSegment(V(-14.58, 3.15, 0), V(-14.45, 3.15, 0)),  # 10
    Part.LineSegment(V(-14.45, 3.15, 0), V(-14.53, 3.05, 0)),  # 11
    Part.LineSegment(V(-14.53, 3.05, 0), V(-15.98, 1.16, 0)),  # 12
    Part.ArcOfCircle(Part.Circle(V(-14.48, 0, 0), V(0, 0, 1), 1.9), math.radians(142), math.radians(218)),  # 13
    Part.LineSegment(V(-15.98, -1.16, 0), V(-14.53, -3.05, 0)),  # 14
    Part.LineSegment(V(-14.53, -3.05, 0), V(-14.45, -3.15, 0)),  # 15
    Part.LineSegment(V(-14.45, -3.15, 0), V(-14.58, -3.15, 0)),  # 16
    Part.LineSegment(V(-14.58, -3.15, 0), V(-16.06, -1.22, 0)),  # 17
    Part.ArcOfCircle(Part.Circle(V(-14.48, 0, 0), V(0, 0, 1), 2), math.radians(142), math.radians(218)),  # 18
    Part.LineSegment(V(-16.06, 1.22, 0), V(-14.58, 3.15, 0)),  # 19
], False)
sketch8.addConstraint([
    Sketcher.Constraint("Coincident", 0, 2, 1, 1),
    Sketcher.Constraint("Tangent", 1, 2, 2, 2),
    Sketcher.Constraint("Tangent", 2, 1, 3, 1),
    Sketcher.Constraint("Coincident", 3, 2, 4, 1),
    Sketcher.Constraint("Coincident", 4, 2, 5, 1),
    Sketcher.Constraint("Coincident", 5, 2, 6, 1),
    Sketcher.Constraint("Tangent", 6, 2, 7, 1),
    Sketcher.Constraint("Tangent", 7, 2, 8, 1),
    Sketcher.Constraint("Coincident", 8, 2, 9, 1),
    Sketcher.Constraint("Coincident", 9, 2, 0, 1),
    Sketcher.Constraint("Coincident", 10, 2, 11, 1),
    Sketcher.Constraint("Coincident", 11, 2, 12, 1),
    Sketcher.Constraint("Tangent", 12, 2, 13, 1),
    Sketcher.Constraint("Tangent", 13, 2, 14, 1),
    Sketcher.Constraint("Coincident", 14, 2, 15, 1),
    Sketcher.Constraint("Coincident", 15, 2, 16, 1),
    Sketcher.Constraint("Coincident", 16, 2, 17, 1),
    Sketcher.Constraint("Tangent", 17, 2, 18, 2),
    Sketcher.Constraint("Tangent", 18, 1, 19, 1),
    Sketcher.Constraint("Coincident", 19, 2, 10, 1),
    Sketcher.Constraint("Horizontal", 0),
    Sketcher.Constraint("Horizontal", 4),
    Sketcher.Constraint("Horizontal", 10),
    Sketcher.Constraint("Horizontal", 16),
    Sketcher.Constraint("Coincident", 7, 3, 2, 3),
    Sketcher.Constraint("Coincident", 18, 3, 13, 3),
    Sketcher.Constraint("Equal", 7, 13),
    Sketcher.Constraint("Equal", 2, 18),
    Sketcher.Constraint("Symmetric", 2, 3, 13, 3, -1, 1),
    Sketcher.Constraint("Symmetric", 4, 2, 10, 2, -1, 1),
    Sketcher.Constraint("Symmetric", 5, 2, 11, 2, -1, 1),
    Sketcher.Constraint("Symmetric", 8, 2, 14, 2, -1, 1),
    Sketcher.Constraint("Symmetric", 9, 2, 15, 2, -1, 1),
    Sketcher.Constraint("Symmetric", 9, 2, 10, 2, -2),
    Sketcher.Constraint("Symmetric", 8, 2, 11, 2, -2),
    Sketcher.Constraint("Symmetric", 2, 1, 17, 2, -2),
    Sketcher.Constraint("Parallel", 3, 5),
    Sketcher.Constraint("Parallel", 5, 6),
    Sketcher.Constraint("Parallel", 1, 8),
    Sketcher.Constraint("Parallel", 12, 19),
    Sketcher.Constraint("Radius", 2, 2.0),
    Sketcher.Constraint("Radius", 7, 1.9),
    Sketcher.Constraint("DistanceY", 3, 2, 0, 2, 6.3),
    Sketcher.Constraint("DistanceY", 3, 2, 5, 2, 0.1),
    Sketcher.Constraint("DistanceX", 5, 2, 2, 1, 1.534301),
    Sketcher.Constraint("DistanceX", -1, 1, 4, 2, 14.45076),
])
sketch8.setExpression("Constraints[40]", "Params.sketch8_radius")
sketch8.setExpression("Constraints[41]", "Params.sketch8_radius2")
pocket5 = doc.addObject("PartDesign::Pocket", "Pocket004")
body.addObject(pocket5)
pocket5.Profile = sketch8
pocket5.setExpression("Length", "Params.pocket5_length")
pocket5.Reversed = True

doc.recompute()
